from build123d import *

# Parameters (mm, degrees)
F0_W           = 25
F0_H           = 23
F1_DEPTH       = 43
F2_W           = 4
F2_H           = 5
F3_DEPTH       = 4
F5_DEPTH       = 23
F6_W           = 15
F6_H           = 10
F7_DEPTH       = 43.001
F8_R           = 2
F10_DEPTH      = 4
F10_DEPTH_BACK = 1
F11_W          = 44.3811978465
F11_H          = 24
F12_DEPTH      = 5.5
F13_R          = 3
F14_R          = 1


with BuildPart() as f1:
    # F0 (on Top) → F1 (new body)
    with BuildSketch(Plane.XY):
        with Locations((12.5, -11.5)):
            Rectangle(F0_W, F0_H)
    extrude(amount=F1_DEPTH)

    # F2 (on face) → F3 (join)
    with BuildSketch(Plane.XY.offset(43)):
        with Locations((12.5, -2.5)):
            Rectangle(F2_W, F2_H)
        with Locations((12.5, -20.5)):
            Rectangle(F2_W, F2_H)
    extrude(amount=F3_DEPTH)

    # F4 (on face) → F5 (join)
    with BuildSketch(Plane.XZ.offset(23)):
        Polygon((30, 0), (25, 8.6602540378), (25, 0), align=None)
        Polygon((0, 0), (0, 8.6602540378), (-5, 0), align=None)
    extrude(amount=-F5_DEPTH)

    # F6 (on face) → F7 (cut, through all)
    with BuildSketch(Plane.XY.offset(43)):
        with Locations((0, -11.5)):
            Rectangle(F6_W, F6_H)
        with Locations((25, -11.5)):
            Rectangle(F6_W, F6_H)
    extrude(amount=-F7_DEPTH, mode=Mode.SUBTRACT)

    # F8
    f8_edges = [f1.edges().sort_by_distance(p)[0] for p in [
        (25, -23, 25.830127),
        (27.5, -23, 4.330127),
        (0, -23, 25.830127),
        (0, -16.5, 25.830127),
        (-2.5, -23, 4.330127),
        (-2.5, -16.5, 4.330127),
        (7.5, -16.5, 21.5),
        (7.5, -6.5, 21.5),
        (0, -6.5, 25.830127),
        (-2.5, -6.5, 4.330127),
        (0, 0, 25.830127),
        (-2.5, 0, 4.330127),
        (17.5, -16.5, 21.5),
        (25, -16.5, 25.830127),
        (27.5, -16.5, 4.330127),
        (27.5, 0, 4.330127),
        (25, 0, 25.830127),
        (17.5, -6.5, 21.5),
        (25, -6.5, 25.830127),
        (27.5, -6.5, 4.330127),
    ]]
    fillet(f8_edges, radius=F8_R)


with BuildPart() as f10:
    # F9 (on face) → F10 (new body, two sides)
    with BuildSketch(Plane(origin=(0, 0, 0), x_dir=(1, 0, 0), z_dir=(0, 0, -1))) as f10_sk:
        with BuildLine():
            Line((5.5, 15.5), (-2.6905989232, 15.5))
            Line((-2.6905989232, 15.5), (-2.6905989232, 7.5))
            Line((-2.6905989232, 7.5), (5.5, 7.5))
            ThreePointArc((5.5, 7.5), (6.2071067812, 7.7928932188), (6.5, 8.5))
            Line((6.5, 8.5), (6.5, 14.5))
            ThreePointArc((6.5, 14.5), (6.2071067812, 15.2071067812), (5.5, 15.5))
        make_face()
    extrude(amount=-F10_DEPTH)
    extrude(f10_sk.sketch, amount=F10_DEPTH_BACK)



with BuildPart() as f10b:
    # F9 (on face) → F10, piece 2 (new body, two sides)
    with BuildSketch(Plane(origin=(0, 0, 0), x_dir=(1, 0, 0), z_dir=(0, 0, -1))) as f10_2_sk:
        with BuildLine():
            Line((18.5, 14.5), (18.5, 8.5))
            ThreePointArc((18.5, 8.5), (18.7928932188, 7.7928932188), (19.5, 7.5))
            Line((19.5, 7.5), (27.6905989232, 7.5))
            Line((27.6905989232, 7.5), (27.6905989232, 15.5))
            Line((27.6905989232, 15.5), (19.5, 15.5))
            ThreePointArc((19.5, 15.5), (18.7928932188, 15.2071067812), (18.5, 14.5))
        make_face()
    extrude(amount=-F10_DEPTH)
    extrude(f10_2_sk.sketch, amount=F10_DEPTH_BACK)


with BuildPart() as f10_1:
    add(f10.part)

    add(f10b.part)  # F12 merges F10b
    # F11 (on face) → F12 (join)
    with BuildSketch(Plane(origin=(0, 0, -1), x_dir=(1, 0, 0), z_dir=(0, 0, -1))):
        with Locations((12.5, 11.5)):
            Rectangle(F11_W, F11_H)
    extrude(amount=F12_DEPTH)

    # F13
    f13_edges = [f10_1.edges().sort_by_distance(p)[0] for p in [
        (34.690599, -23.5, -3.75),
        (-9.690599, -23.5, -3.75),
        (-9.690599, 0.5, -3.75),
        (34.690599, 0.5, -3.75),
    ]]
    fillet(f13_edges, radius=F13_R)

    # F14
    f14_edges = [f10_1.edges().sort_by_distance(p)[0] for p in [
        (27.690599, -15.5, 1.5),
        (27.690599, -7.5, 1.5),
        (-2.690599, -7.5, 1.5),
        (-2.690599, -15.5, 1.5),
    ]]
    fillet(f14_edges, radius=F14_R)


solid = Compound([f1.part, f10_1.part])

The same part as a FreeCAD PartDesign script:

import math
import FreeCAD as App
import Part
import Sketcher

V = App.Vector
Q = App.Units.Quantity


def edges_at(feature, points):
    """Names of the edges that pass closest to the given points."""
    edges = feature.Shape.Edges
    near = lambda p: min(range(len(edges)), key=lambda i: edges[i].distToShape(Part.Vertex(*p))[0])
    return sorted({f"Edge{near(p) + 1}" for p in points})


def add_polygon(sketch, points):
    """Adds a closed chain of lines whose ends are joined by coincident constraints."""
    first, n = sketch.GeometryCount, len(points)
    for a, b in zip(points, points[1:] + points[:1]):
        sketch.addGeometry(Part.LineSegment(App.Vector(*a, 0), App.Vector(*b, 0)), False)
    for i in range(n):
        sketch.addConstraint(Sketcher.Constraint("Coincident", first + i, 2, first + (i + 1) % n, 1))

doc = App.newDocument("Part")
params = doc.addObject("Spreadsheet::Sheet", "Params")
for row, (alias, value) in enumerate([
    ("sketch1_width", "25 mm"),
    ("sketch1_height", "23 mm"),
    ("pad1_length", "43 mm"),
    ("sketch2_width", "4 mm"),
    ("sketch2_height", "5 mm"),
    ("pad2_length", "4 mm"),
    ("sketch3_width", "5 mm"),
    ("pad3_length", "23 mm"),
    ("sketch4_width", "15 mm"),
    ("sketch4_height", "10 mm"),
    ("fillet_radius", "2 mm"),
    ("sketch5_radius", "1 mm"),
    ("sketch5_height", "8 mm"),
    ("pad4_length", "4 mm"),
    ("pad4_length2", "1 mm"),
    ("sketch6_radius", "1 mm"),
    ("sketch6_height", "6 mm"),
    ("pad5_length", "4 mm"),
    ("pad5_length2", "1 mm"),
    ("sketch7_height", "24 mm"),
    ("pad6_length", "5.5 mm"),
    ("fillet2_radius", "3 mm"),
    ("fillet3_radius", "1 mm"),
], start=1):
    params.set(f"A{row}", alias)
    params.set(f"B{row}", "=" + value)
    params.setAlias(f"B{row}", alias)

body = doc.addObject("PartDesign::Body", "Body")

# Sketch on XY plane
sketch1 = doc.addObject("Sketcher::SketchObject", "Sketch")
body.addObject(sketch1)
sketch1.AttachmentSupport = (doc.XY_Plane, [""])
sketch1.MapMode = "FlatFace"
add_polygon(sketch1, [(0, 0), (0, -23), (25, -23), (25, 0)])  # lines 0-3
sketch1.addConstraint([
    Sketcher.Constraint("Vertical", 0),
    Sketcher.Constraint("Horizontal", 1),
    Sketcher.Constraint("Vertical", 2),
    Sketcher.Constraint("Horizontal", 3),
    Sketcher.Constraint("Coincident", 3, 2, -1, 1),
    Sketcher.Constraint("DistanceX", 1, 1, 1, 2, 25.0),
    Sketcher.Constraint("DistanceY", 0, 2, 0, 1, 23.0),
])
sketch1.setExpression("Constraints[9]", "Params.sketch1_width")
sketch1.setExpression("Constraints[10]", "Params.sketch1_height")
pad1 = doc.addObject("PartDesign::Pad", "Pad")
body.addObject(pad1)
pad1.Profile = sketch1
pad1.setExpression("Length", "Params.pad1_length")

# Sketch on XY plane
sketch2 = doc.addObject("Sketcher::SketchObject", "Sketch001")
body.addObject(sketch2)
sketch2.AttachmentSupport = (doc.XY_Plane, [""])
sketch2.MapMode = "FlatFace"
sketch2.AttachmentOffset = App.Placement(V(0, 0, 43), App.Rotation())
add_polygon(sketch2, [(10.5, 0), (10.5, -5), (14.5, -5), (14.5, 0)])  # lines 0-3
add_polygon(sketch2, [(10.5, -18), (10.5, -23), (14.5, -23), (14.5, -18)])  # lines 4-7
sketch2.addConstraint([
    Sketcher.Constraint("Vertical", 0),
    Sketcher.Constraint("Horizontal", 1),
    Sketcher.Constraint("Vertical", 2),
    Sketcher.Constraint("Horizontal", 3),
    Sketcher.Constraint("Vertical", 4),
    Sketcher.Constraint("Horizontal", 5),
    Sketcher.Constraint("Vertical", 6),
    Sketcher.Constraint("Horizontal", 7),
    Sketcher.Constraint("PointOnObject", 2, 2, -1),
    Sketcher.Constraint("Vertical", 3, 2, 4, 2),
    Sketcher.Constraint("Vertical", 2, 2, 5, 2),
    Sketcher.Constraint("Equal", 2, 4),
    Sketcher.Constraint("DistanceX", 1, 1, 1, 2, 4.0),
    Sketcher.Constraint("DistanceY", 0, 2, 0, 1, 5.0),
    Sketcher.Constraint("DistanceY", 4, 2, -1, 1, 23.0),
    Sketcher.Constraint("DistanceX", -1, 1, 0, 2, 10.5),
])
sketch2.setExpression("Constraints[20]", "Params.sketch2_width")
sketch2.setExpression("Constraints[21]", "Params.sketch2_height")
pad2 = doc.addObject("PartDesign::Pad", "Pad001")
body.addObject(pad2)
pad2.Profile = sketch2
pad2.setExpression("Length", "Params.pad2_length")

# Sketch on XZ plane
sketch3 = doc.addObject("Sketcher::SketchObject", "Sketch002")
body.addObject(sketch3)
sketch3.AttachmentSupport = (doc.XZ_Plane, [""])
sketch3.MapMode = "FlatFace"
sketch3.AttachmentOffset = App.Placement(V(0, 0, 23), App.Rotation())
add_polygon(sketch3, [(30, 0), (25, 8.660254), (25, 0)])  # lines 0-2
add_polygon(sketch3, [(0, 0), (0, 8.660254), (-5, 0)])  # lines 3-5
sketch3.addConstraint([
    Sketcher.Constraint("Vertical", 1),
    Sketcher.Constraint("Horizontal", 2),
    Sketcher.Constraint("Vertical", 3),
    Sketcher.Constraint("Horizontal", 5),
    Sketcher.Constraint("Coincident", 5, 2, -1, 1),
    Sketcher.Constraint("PointOnObject", 1, 2, -1),
    Sketcher.Constraint("Horizontal", 0, 2, 3, 2),
    Sketcher.Constraint("Equal", 2, 5),
    Sketcher.Constraint("DistanceX", 2, 1, 2, 2, 5.0),
    Sketcher.Constraint("Angle", 0, Q("120 deg")),
    Sketcher.Constraint("DistanceX", -1, 1, 0, 2, 25.0),
])
sketch3.setExpression("Constraints[14]", "Params.sketch3_width")
pad3 = doc.addObject("PartDesign::Pad", "Pad002")
body.addObject(pad3)
pad3.Profile = sketch3
pad3.setExpression("Length", "Params.pad3_length")
pad3.Reversed = True

# Sketch on XY plane
sketch4 = doc.addObject("Sketcher::SketchObject", "Sketch003")
body.addObject(sketch4)
sketch4.AttachmentSupport = (doc.XY_Plane, [""])
sketch4.MapMode = "FlatFace"
sketch4.AttachmentOffset = App.Placement(V(0, 0, 43), App.Rotation())
add_polygon(sketch4, [(-7.5, -6.5), (-7.5, -16.5), (7.5, -16.5), (7.5, -6.5)])  # lines 0-3
add_polygon(sketch4, [(17.5, -6.5), (17.5, -16.5), (32.5, -16.5), (32.5, -6.5)])  # lines 4-7
sketch4.addConstraint([
    Sketcher.Constraint("Vertical", 0),
    Sketcher.Constraint("Horizontal", 1),
    Sketcher.Constraint("Vertical", 2),
    Sketcher.Constraint("Horizontal", 3),
    Sketcher.Constraint("Vertical", 4),
    Sketcher.Constraint("Horizontal", 5),
    Sketcher.Constraint("Vertical", 6),
    Sketcher.Constraint("Horizontal", 7),
    Sketcher.Constraint("Horizontal", 1, 2, 4, 2),
    Sketcher.Constraint("Horizontal", 3, 2, 6, 2),
    Sketcher.Constraint("Equal", 3, 5),
    Sketcher.Constraint("DistanceX", 1, 1, 1, 2, 15.0),
    Sketcher.Constraint("DistanceY", 0, 2, 0, 1, 10.0),
    Sketcher.Constraint("DistanceX", 1, 2, 4, 2, 10.0),
    Sketcher.Constraint("DistanceX", 0, 2, -1, 1, 7.5),
    Sketcher.Constraint("DistanceY", 0, 2, -1, 1, 16.5),
])
sketch4.setExpression("Constraints[19]", "Params.sketch4_width")
sketch4.setExpression("Constraints[20]", "Params.sketch4_height")
pocket1 = doc.addObject("PartDesign::Pocket", "Pocket")
body.addObject(pocket1)
pocket1.Profile = sketch4
pocket1.Type = "ThroughAll"
doc.recompute()

fillet = doc.addObject("PartDesign::Fillet", "Fillet")
body.addObject(fillet)
fillet.Base = (pocket1, edges_at(pocket1, [
    (25, -23, 25.83),
    (27.5, -23, 4.33),
    (0, -23, 25.83),
    (0, -16.5, 25.83),
    (-2.5, -23, 4.33),
    (-2.5, -16.5, 4.33),
    (7.5, -16.5, 21.5),
    (7.5, -6.5, 21.5),
    (0, -6.5, 25.83),
    (-2.5, -6.5, 4.33),
    (0, 0, 25.83),
    (-2.5, 0, 4.33),
    (17.5, -16.5, 21.5),
    (25, -16.5, 25.83),
    (27.5, -16.5, 4.33),
    (27.5, 0, 4.33),
    (25, 0, 25.83),
    (17.5, -6.5, 21.5),
    (25, -6.5, 25.83),
    (27.5, -6.5, 4.33),
]))
fillet.setExpression("Radius", "Params.fillet_radius")
body2 = doc.addObject("PartDesign::Body", "Body001")

# Sketch on XY plane
sketch5 = doc.addObject("Sketcher::SketchObject", "Sketch004")
body2.addObject(sketch5)
sketch5.AttachmentSupport = (doc.getObject("XY_Plane001"), [""])
sketch5.MapMode = "FlatFace"
sketch5.addGeometry([
    Part.LineSegment(V(5.5, -15.5, 0), V(-2.690599, -15.5, 0)),  # 0
    Part.LineSegment(V(-2.690599, -15.5, 0), V(-2.690599, -7.5, 0)),  # 1
    Part.LineSegment(V(-2.690599, -7.5, 0), V(5.5, -7.5, 0)),  # 2
    Part.ArcOfCircle(Part.Circle(V(5.5, -8.5, 0), V(0, 0, 1), 1), math.radians(0), math.radians(90)),  # 3
    Part.LineSegment(V(6.5, -8.5, 0), V(6.5, -14.5, 0)),  # 4
    Part.ArcOfCircle(Part.Circle(V(5.5, -14.5, 0), V(0, 0, 1), 1), math.radians(-90), math.radians(0)),  # 5
], False)
sketch5.addConstraint([
    Sketcher.Constraint("Coincident", 0, 2, 1, 1),
    Sketcher.Constraint("Coincident", 1, 2, 2, 1),
    Sketcher.Constraint("Tangent", 2, 2, 3, 2),
    Sketcher.Constraint("Tangent", 3, 1, 4, 1),
    Sketcher.Constraint("Tangent", 4, 2, 5, 2),
    Sketcher.Constraint("Tangent", 5, 1, 0, 1),
    Sketcher.Constraint("Horizontal", 0),
    Sketcher.Constraint("Vertical", 1),
    Sketcher.Constraint("Horizontal", 2),
    Sketcher.Constraint("Vertical", 4),
    Sketcher.Constraint("Equal", 3, 5),
    Sketcher.Constraint("Radius", 3, 1.0),
    Sketcher.Constraint("DistanceY", 1, 1, 1, 2, 8.0),
    Sketcher.Constraint("DistanceX", -1, 1, 3, 3, 5.5),
    Sketcher.Constraint("DistanceY", 3, 3, -1, 1, 8.5),
    Sketcher.Constraint("DistanceX", 0, 2, 0, 1, 8.190599),
])
sketch5.setExpression("Constraints[11]", "Params.sketch5_radius")
sketch5.setExpression("Constraints[12]", "Params.sketch5_height")
pad4 = doc.addObject("PartDesign::Pad", "Pad003")
body2.addObject(pad4)
pad4.Profile = sketch5
pad4.Type = "TwoLengths"
pad4.setExpression("Length", "Params.pad4_length")
pad4.setExpression("Length2", "Params.pad4_length2")
body3 = doc.addObject("PartDesign::Body", "Body002")

# Sketch on XY plane
sketch6 = doc.addObject("Sketcher::SketchObject", "Sketch005")
body3.addObject(sketch6)
sketch6.AttachmentSupport = (doc.getObject("XY_Plane002"), [""])
sketch6.MapMode = "FlatFace"
sketch6.addGeometry([
    Part.LineSegment(V(18.5, -14.5, 0), V(18.5, -8.5, 0)),  # 0
    Part.ArcOfCircle(Part.Circle(V(19.5, -8.5, 0), V(0, 0, 1), 1), math.radians(90), math.radians(180)),  # 1
    Part.LineSegment(V(19.5, -7.5, 0), V(27.690599, -7.5, 0)),  # 2
    Part.LineSegment(V(27.690599, -7.5, 0), V(27.690599, -15.5, 0)),  # 3
    Part.LineSegment(V(27.690599, -15.5, 0), V(19.5, -15.5, 0)),  # 4
    Part.ArcOfCircle(Part.Circle(V(19.5, -14.5, 0), V(0, 0, 1), 1), math.radians(180), math.radians(270)),  # 5
], False)
sketch6.addConstraint([
    Sketcher.Constraint("Tangent", 0, 2, 1, 2),
    Sketcher.Constraint("Tangent", 1, 1, 2, 1),
    Sketcher.Constraint("Coincident", 2, 2, 3, 1),
    Sketcher.Constraint("Coincident", 3, 2, 4, 1),
    Sketcher.Constraint("Tangent", 4, 2, 5, 2),
    Sketcher.Constraint("Tangent", 5, 1, 0, 1),
    Sketcher.Constraint("Vertical", 0),
    Sketcher.Constraint("Horizontal", 2),
    Sketcher.Constraint("Vertical", 3),
    Sketcher.Constraint("Horizontal", 4),
    Sketcher.Constraint("Equal", 1, 5),
    Sketcher.Constraint("Radius", 1, 1.0),
    Sketcher.Constraint("DistanceY", 0, 1, 0, 2, 6.0),
    Sketcher.Constraint("DistanceX", -1, 1, 1, 3, 19.5),
    Sketcher.Constraint("DistanceY", 1, 3, -1, 1, 8.5),
    Sketcher.Constraint("DistanceX", 2, 1, 2, 2, 8.190599),
])
sketch6.setExpression("Constraints[11]", "Params.sketch6_radius")
sketch6.setExpression("Constraints[12]", "Params.sketch6_height")
pad5 = doc.addObject("PartDesign::Pad", "Pad004")
body3.addObject(pad5)
pad5.Profile = sketch6
pad5.Type = "TwoLengths"
pad5.setExpression("Length", "Params.pad5_length")
pad5.setExpression("Length2", "Params.pad5_length2")
body2.AllowCompound = True
doc.recompute()

boolean = doc.addObject("PartDesign::Boolean", "Boolean")
body2.addObject(boolean)
boolean.Type = "Fuse"
boolean.addObjects([body3])

# Sketch on XY plane
sketch7 = doc.addObject("Sketcher::SketchObject", "Sketch006")
body2.addObject(sketch7)
sketch7.AttachmentSupport = (doc.getObject("XY_Plane001"), [""])
sketch7.MapMode = "FlatFace"
sketch7.AttachmentOffset = App.Placement(V(0, 0, -1), App.Rotation())
add_polygon(sketch7, [(-9.690599, -23.5), (-9.690599, 0.5), (34.690599, 0.5), (34.690599, -23.5)])  # lines 0-3
sketch7.addConstraint([
    Sketcher.Constraint("Vertical", 0),
    Sketcher.Constraint("Horizontal", 1),
    Sketcher.Constraint("Vertical", 2),
    Sketcher.Constraint("Horizontal", 3),
    Sketcher.Constraint("DistanceY", 0, 1, 0, 2, 24.0),
    Sketcher.Constraint("DistanceY", -1, 1, 0, 2, 0.5),
    Sketcher.Constraint("DistanceX", 0, 2, -1, 1, 9.690599),
    Sketcher.Constraint("DistanceX", -1, 1, 1, 2, 34.690599),
])
sketch7.setExpression("Constraints[8]", "Params.sketch7_height")
pad6 = doc.addObject("PartDesign::Pad", "Pad005")
body2.addObject(pad6)
pad6.Profile = sketch7
pad6.setExpression("Length", "Params.pad6_length")
pad6.Reversed = True
doc.recompute()

fillet2 = doc.addObject("PartDesign::Fillet", "Fillet001")
body2.addObject(fillet2)
fillet2.Base = (pad6, edges_at(pad6, [
    (34.691, -23.5, -3.75),
    (-9.691, -23.5, -3.75),
    (-9.691, 0.5, -3.75),
    (34.691, 0.5, -3.75),
]))
fillet2.setExpression("Radius", "Params.fillet2_radius")
doc.recompute()

fillet3 = doc.addObject("PartDesign::Fillet", "Fillet002")
body2.addObject(fillet3)
fillet3.Base = (fillet2, edges_at(fillet2, [
    (27.691, -15.5, 1.5),
    (27.691, -7.5, 1.5),
    (-2.691, -7.5, 1.5),
    (-2.691, -15.5, 1.5),
]))
fillet3.setExpression("Radius", "Params.fillet3_radius")

doc.recompute()
